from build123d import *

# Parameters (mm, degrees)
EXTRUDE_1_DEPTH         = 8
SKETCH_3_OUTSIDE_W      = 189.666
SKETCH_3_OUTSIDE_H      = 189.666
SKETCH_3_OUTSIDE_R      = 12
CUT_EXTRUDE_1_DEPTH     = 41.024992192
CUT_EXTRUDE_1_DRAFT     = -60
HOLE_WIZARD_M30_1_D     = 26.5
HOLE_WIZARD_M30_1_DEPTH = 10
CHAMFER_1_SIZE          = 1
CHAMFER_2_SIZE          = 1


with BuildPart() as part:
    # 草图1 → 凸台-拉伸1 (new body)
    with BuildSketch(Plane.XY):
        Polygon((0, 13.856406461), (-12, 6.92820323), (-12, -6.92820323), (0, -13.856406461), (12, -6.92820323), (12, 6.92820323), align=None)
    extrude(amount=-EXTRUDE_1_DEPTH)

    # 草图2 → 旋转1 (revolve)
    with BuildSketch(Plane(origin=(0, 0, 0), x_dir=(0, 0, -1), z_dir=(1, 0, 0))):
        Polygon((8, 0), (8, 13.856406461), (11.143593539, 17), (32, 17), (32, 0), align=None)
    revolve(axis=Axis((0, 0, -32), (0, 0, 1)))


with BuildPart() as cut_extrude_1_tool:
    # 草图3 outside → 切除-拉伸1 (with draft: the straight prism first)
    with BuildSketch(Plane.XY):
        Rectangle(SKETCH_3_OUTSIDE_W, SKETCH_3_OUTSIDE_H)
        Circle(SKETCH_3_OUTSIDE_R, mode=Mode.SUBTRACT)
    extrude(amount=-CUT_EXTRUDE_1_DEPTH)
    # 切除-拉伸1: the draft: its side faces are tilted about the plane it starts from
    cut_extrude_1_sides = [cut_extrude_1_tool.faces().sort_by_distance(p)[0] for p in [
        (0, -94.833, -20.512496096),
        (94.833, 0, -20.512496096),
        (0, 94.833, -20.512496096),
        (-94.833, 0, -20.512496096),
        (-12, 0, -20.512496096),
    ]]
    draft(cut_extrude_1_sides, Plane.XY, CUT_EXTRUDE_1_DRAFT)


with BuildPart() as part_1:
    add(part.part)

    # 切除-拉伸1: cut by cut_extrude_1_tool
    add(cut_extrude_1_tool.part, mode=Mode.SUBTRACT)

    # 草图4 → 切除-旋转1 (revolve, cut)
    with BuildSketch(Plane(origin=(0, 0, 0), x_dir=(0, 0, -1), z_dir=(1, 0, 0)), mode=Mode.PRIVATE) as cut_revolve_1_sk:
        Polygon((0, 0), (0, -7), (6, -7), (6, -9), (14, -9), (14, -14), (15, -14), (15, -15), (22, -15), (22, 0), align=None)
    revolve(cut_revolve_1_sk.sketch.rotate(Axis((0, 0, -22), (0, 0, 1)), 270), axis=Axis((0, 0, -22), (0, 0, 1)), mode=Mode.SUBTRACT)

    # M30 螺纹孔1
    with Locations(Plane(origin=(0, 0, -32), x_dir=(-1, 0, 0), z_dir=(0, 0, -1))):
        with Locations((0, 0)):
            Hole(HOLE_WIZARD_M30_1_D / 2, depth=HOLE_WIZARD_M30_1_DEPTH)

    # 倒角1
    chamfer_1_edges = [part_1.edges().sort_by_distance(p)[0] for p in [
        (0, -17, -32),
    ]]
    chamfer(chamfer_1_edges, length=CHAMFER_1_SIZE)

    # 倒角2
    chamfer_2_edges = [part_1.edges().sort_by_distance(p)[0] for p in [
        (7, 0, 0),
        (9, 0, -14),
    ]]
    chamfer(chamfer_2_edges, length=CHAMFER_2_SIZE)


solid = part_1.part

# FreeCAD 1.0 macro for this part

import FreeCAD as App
import Part
import Sketcher
from FreeCAD import Vector
Q = App.Units.Quantity


def edges_at(feature, points):
    """Names of the edges that pass closest to the given points."""
    edges = feature.Shape.Edges
    near = lambda p: min(range(len(edges)), key=lambda i: edges[i].distToShape(Part.Vertex(*p))[0])
    return sorted({f"Edge{near(p) + 1}" for p in points})


def faces_at(feature, points):
    """Names of the faces that lie closest to the given points."""
    faces = feature.Shape.Faces
    near = lambda p: min(range(len(faces)), key=lambda i: faces[i].distToShape(Part.Vertex(*p))[0])
    return sorted({f"Face{near(p) + 1}" for p in points})


def add_polygon(sketch, points):
    """Adds a closed chain of lines whose ends are joined by coincident constraints."""
    first, n = sketch.GeometryCount, len(points)
    for a, b in zip(points, points[1:] + points[:1]):
        sketch.addGeometry(Part.LineSegment(App.Vector(*a, 0), App.Vector(*b, 0)), False)
    for i in range(n):
        sketch.addConstraint(Sketcher.Constraint("Coincident", first + i, 2, first + (i + 1) % n, 1))

doc = App.newDocument("Part")
body = doc.addObject("PartDesign::Body", "Body")

# Sketch on XY plane
sketch1 = body.newObject("Sketcher::SketchObject", "Sketch")
sketch1.AttachmentSupport = (doc.getObject("XY_Plane"), [""])
sketch1.MapMode = "FlatFace"
add_polygon(sketch1, [(0, 13.856406), (-12, 6.928203), (-12, -6.928203), (0, -13.856406), (12, -6.928203), (12, 6.928203)])  # lines 0-5
sketch1.addConstraint([
    Sketcher.Constraint("Vertical", 1),
    Sketcher.Constraint("Vertical", 4),
    Sketcher.Constraint("Symmetric", 0, 2, 3, 2, -1, 1),
    Sketcher.Constraint("Symmetric", 2, 2, 5, 2, -1, 1),
    Sketcher.Constraint("PointOnObject", 2, 2, -2),
    Sketcher.Constraint("Parallel", 2, 5),
    Sketcher.Constraint("Horizontal", 1, 2, 3, 2),
    Sketcher.Constraint("Angle", 0, Q("-150 deg")),
    Sketcher.Constraint("DistanceX", 0, 2, -1, 1, Q("12 mm")),
    Sketcher.Constraint("DistanceY", 1, 2, 1, 1, Q("13.856406 mm")),
])
pad1 = body.newObject("PartDesign::Pad", "Pad")
pad1.Profile = sketch1
pad1.Length = 8
pad1.Reversed = True

# Sketch on YZ plane
sketch2 = body.newObject("Sketcher::SketchObject", "Sketch001")
sketch2.AttachmentSupport = (doc.getObject("YZ_Plane"), [""])
sketch2.MapMode = "FlatFace"
add_polygon(sketch2, [(13.856406, -8), (0, -8), (0, -32), (17, -32), (17, -11.143594)])  # lines 0-4
sketch2.addConstraint([
    Sketcher.Constraint("Horizontal", 0),
    Sketcher.Constraint("Vertical", 1),
    Sketcher.Constraint("Horizontal", 2),
    Sketcher.Constraint("Vertical", 3),
    Sketcher.Constraint("PointOnObject", 0, 2, -2),
    Sketcher.Constraint("DistanceX", 2, 1, 2, 2, Q("17 mm")),
    Sketcher.Constraint("DistanceY", 1, 2, 1, 1, Q("24 mm")),
    Sketcher.Constraint("Angle", 4, Q("135 deg")),
    Sketcher.Constraint("DistanceY", 0, 2, -1, 1, Q("8 mm")),
    Sketcher.Constraint("DistanceX", 0, 2, 0, 1, Q("13.856406 mm")),
])
revolution = body.newObject("PartDesign::Revolution", "Revolution")
revolution.Profile = sketch2
revolution.ReferenceAxis = (sketch2, ["V_Axis"])
revolution.Angle = 360
body2 = doc.addObject("PartDesign::Body", "Body001")

# Sketch on XY plane
sketch3 = body2.newObject("Sketcher::SketchObject", "Sketch002")
sketch3.AttachmentSupport = (doc.getObject("XY_Plane001"), [""])
sketch3.MapMode = "FlatFace"
add_polygon(sketch3, [(-94.833, 94.833), (-94.833, -94.833), (94.833, -94.833), (94.833, 94.833)])  # lines 0-3
sketch3.addGeometry(Part.Circle(Vector(0, 0, 0), Vector(0, 0, 1), 12), False)  # 4
sketch3.addConstraint([
    Sketcher.Constraint("Vertical", 0),
    Sketcher.Constraint("Horizontal", 1),
    Sketcher.Constraint("Vertical", 2),
    Sketcher.Constraint("Horizontal", 3),
    Sketcher.Constraint("Coincident", 4, 3, -1, 1),
    Sketcher.Constraint("Symmetric", 0, 2, 2, 2, -1, 1),
    Sketcher.Constraint("Equal", 3, 0),
    Sketcher.Constraint("Diameter", 4, Q("24 mm")),
    Sketcher.Constraint("DistanceX", 1, 1, 1, 2, Q("189.666 mm")),
])
pad2 = body2.newObject("PartDesign::Pad", "Pad001")
pad2.Profile = sketch3
pad2.Length = 41.024992
pad2.Reversed = True
doc.recompute()

draft = body2.newObject("PartDesign::Draft", "Draft")
draft.Base = (pad2, faces_at(pad2, [
    (0, -94.833, -20.512),
    (94.833, 0, -20.512),
    (0, 94.833, -20.512),
    (-94.833, 0, -20.512),
    (-12, 0, -20.512),
]))
draft.NeutralPlane = (doc.getObject("XY_Plane001"), [""])
draft.Angle = 60
draft.Reversed = True
doc.recompute()

boolean = body.newObject("PartDesign::Boolean", "Boolean")
boolean.Type = "Cut"
boolean.addObjects([body2])

# Sketch on YZ plane
sketch4 = body.newObject("Sketcher::SketchObject", "Sketch003")
sketch4.AttachmentSupport = (doc.getObject("YZ_Plane"), [""])
sketch4.MapMode = "FlatFace"
add_polygon(sketch4, [(0, 0), (-7, 0), (-7, -6), (-9, -6), (-9, -14), (-14, -14), (-14, -15), (-15, -15), (-15, -22), (0, -22)])  # lines 0-9
sketch4.addConstraint([
    Sketcher.Constraint("Horizontal", 0),
    Sketcher.Constraint("Vertical", 1),
    Sketcher.Constraint("Horizontal", 2),
    Sketcher.Constraint("Vertical", 3),
    Sketcher.Constraint("Horizontal", 4),
    Sketcher.Constraint("Vertical", 5),
    Sketcher.Constraint("Horizontal", 6),
    Sketcher.Constraint("Vertical", 7),
    Sketcher.Constraint("Horizontal", 8),
    Sketcher.Constraint("Vertical", 9),
    Sketcher.Constraint("Coincident", 9, 2, -1, 1),
    Sketcher.Constraint("Equal", 6, 5),
    Sketcher.Constraint("Equal", 0, 7),
    Sketcher.Constraint("DistanceX", 0, 2, 0, 1, Q("7 mm")),
    Sketcher.Constraint("DistanceX", 2, 2, 2, 1, Q("2 mm")),
    Sketcher.Constraint("DistanceX", 4, 2, 4, 1, Q("5 mm")),
    Sketcher.Constraint("DistanceX", 6, 2, 6, 1, Q("1 mm")),
    Sketcher.Constraint("DistanceY", 1, 2, 1, 1, Q("6 mm")),
    Sketcher.Constraint("DistanceY", 3, 2, 3, 1, Q("8 mm")),
])
groove = body.newObject("PartDesign::Groove", "Groove")
groove.Profile = sketch4
groove.ReferenceAxis = (sketch4, ["V_Axis"])
groove.Angle = 360

# Sketch on XY plane
sketch5 = body.newObject("Sketcher::SketchObject", "Sketch004")
sketch5.AttachmentSupport = (doc.getObject("XY_Plane"), [""])
sketch5.MapMode = "FlatFace"
sketch5.AttachmentOffset = App.Placement(Vector(0, 0, -32), App.Rotation())
sketch5.addGeometry(Part.Circle(Vector(0, 0, 0), Vector(0, 0, 1), 13.25), False)
sketch5.addConstraint([
    Sketcher.Constraint("Coincident", 0, 3, -1, 1),
    Sketcher.Constraint("Diameter", 0, Q("26.5 mm")),
])
doc.recompute()
hole = body.newObject("PartDesign::Hole", "Hole")
hole.Profile = sketch5
hole.ThreadType = "None"
hole.Diameter = 26.5
hole.DepthType = "Dimension"
hole.Depth = 10
hole.DrillPoint = "Flat"
hole.Reversed = True
doc.recompute()

chamfer = body.newObject("PartDesign::Chamfer", "Chamfer")
chamfer.Base = (hole, edges_at(hole, [(0, -17, -32)]))
chamfer.Size = 1
doc.recompute()

chamfer2 = body.newObject("PartDesign::Chamfer", "Chamfer001")
chamfer2.Base = (chamfer, edges_at(chamfer, [(7, 0, 0), (9, 0, -14)]))
chamfer2.Size = 1

doc.recompute()
